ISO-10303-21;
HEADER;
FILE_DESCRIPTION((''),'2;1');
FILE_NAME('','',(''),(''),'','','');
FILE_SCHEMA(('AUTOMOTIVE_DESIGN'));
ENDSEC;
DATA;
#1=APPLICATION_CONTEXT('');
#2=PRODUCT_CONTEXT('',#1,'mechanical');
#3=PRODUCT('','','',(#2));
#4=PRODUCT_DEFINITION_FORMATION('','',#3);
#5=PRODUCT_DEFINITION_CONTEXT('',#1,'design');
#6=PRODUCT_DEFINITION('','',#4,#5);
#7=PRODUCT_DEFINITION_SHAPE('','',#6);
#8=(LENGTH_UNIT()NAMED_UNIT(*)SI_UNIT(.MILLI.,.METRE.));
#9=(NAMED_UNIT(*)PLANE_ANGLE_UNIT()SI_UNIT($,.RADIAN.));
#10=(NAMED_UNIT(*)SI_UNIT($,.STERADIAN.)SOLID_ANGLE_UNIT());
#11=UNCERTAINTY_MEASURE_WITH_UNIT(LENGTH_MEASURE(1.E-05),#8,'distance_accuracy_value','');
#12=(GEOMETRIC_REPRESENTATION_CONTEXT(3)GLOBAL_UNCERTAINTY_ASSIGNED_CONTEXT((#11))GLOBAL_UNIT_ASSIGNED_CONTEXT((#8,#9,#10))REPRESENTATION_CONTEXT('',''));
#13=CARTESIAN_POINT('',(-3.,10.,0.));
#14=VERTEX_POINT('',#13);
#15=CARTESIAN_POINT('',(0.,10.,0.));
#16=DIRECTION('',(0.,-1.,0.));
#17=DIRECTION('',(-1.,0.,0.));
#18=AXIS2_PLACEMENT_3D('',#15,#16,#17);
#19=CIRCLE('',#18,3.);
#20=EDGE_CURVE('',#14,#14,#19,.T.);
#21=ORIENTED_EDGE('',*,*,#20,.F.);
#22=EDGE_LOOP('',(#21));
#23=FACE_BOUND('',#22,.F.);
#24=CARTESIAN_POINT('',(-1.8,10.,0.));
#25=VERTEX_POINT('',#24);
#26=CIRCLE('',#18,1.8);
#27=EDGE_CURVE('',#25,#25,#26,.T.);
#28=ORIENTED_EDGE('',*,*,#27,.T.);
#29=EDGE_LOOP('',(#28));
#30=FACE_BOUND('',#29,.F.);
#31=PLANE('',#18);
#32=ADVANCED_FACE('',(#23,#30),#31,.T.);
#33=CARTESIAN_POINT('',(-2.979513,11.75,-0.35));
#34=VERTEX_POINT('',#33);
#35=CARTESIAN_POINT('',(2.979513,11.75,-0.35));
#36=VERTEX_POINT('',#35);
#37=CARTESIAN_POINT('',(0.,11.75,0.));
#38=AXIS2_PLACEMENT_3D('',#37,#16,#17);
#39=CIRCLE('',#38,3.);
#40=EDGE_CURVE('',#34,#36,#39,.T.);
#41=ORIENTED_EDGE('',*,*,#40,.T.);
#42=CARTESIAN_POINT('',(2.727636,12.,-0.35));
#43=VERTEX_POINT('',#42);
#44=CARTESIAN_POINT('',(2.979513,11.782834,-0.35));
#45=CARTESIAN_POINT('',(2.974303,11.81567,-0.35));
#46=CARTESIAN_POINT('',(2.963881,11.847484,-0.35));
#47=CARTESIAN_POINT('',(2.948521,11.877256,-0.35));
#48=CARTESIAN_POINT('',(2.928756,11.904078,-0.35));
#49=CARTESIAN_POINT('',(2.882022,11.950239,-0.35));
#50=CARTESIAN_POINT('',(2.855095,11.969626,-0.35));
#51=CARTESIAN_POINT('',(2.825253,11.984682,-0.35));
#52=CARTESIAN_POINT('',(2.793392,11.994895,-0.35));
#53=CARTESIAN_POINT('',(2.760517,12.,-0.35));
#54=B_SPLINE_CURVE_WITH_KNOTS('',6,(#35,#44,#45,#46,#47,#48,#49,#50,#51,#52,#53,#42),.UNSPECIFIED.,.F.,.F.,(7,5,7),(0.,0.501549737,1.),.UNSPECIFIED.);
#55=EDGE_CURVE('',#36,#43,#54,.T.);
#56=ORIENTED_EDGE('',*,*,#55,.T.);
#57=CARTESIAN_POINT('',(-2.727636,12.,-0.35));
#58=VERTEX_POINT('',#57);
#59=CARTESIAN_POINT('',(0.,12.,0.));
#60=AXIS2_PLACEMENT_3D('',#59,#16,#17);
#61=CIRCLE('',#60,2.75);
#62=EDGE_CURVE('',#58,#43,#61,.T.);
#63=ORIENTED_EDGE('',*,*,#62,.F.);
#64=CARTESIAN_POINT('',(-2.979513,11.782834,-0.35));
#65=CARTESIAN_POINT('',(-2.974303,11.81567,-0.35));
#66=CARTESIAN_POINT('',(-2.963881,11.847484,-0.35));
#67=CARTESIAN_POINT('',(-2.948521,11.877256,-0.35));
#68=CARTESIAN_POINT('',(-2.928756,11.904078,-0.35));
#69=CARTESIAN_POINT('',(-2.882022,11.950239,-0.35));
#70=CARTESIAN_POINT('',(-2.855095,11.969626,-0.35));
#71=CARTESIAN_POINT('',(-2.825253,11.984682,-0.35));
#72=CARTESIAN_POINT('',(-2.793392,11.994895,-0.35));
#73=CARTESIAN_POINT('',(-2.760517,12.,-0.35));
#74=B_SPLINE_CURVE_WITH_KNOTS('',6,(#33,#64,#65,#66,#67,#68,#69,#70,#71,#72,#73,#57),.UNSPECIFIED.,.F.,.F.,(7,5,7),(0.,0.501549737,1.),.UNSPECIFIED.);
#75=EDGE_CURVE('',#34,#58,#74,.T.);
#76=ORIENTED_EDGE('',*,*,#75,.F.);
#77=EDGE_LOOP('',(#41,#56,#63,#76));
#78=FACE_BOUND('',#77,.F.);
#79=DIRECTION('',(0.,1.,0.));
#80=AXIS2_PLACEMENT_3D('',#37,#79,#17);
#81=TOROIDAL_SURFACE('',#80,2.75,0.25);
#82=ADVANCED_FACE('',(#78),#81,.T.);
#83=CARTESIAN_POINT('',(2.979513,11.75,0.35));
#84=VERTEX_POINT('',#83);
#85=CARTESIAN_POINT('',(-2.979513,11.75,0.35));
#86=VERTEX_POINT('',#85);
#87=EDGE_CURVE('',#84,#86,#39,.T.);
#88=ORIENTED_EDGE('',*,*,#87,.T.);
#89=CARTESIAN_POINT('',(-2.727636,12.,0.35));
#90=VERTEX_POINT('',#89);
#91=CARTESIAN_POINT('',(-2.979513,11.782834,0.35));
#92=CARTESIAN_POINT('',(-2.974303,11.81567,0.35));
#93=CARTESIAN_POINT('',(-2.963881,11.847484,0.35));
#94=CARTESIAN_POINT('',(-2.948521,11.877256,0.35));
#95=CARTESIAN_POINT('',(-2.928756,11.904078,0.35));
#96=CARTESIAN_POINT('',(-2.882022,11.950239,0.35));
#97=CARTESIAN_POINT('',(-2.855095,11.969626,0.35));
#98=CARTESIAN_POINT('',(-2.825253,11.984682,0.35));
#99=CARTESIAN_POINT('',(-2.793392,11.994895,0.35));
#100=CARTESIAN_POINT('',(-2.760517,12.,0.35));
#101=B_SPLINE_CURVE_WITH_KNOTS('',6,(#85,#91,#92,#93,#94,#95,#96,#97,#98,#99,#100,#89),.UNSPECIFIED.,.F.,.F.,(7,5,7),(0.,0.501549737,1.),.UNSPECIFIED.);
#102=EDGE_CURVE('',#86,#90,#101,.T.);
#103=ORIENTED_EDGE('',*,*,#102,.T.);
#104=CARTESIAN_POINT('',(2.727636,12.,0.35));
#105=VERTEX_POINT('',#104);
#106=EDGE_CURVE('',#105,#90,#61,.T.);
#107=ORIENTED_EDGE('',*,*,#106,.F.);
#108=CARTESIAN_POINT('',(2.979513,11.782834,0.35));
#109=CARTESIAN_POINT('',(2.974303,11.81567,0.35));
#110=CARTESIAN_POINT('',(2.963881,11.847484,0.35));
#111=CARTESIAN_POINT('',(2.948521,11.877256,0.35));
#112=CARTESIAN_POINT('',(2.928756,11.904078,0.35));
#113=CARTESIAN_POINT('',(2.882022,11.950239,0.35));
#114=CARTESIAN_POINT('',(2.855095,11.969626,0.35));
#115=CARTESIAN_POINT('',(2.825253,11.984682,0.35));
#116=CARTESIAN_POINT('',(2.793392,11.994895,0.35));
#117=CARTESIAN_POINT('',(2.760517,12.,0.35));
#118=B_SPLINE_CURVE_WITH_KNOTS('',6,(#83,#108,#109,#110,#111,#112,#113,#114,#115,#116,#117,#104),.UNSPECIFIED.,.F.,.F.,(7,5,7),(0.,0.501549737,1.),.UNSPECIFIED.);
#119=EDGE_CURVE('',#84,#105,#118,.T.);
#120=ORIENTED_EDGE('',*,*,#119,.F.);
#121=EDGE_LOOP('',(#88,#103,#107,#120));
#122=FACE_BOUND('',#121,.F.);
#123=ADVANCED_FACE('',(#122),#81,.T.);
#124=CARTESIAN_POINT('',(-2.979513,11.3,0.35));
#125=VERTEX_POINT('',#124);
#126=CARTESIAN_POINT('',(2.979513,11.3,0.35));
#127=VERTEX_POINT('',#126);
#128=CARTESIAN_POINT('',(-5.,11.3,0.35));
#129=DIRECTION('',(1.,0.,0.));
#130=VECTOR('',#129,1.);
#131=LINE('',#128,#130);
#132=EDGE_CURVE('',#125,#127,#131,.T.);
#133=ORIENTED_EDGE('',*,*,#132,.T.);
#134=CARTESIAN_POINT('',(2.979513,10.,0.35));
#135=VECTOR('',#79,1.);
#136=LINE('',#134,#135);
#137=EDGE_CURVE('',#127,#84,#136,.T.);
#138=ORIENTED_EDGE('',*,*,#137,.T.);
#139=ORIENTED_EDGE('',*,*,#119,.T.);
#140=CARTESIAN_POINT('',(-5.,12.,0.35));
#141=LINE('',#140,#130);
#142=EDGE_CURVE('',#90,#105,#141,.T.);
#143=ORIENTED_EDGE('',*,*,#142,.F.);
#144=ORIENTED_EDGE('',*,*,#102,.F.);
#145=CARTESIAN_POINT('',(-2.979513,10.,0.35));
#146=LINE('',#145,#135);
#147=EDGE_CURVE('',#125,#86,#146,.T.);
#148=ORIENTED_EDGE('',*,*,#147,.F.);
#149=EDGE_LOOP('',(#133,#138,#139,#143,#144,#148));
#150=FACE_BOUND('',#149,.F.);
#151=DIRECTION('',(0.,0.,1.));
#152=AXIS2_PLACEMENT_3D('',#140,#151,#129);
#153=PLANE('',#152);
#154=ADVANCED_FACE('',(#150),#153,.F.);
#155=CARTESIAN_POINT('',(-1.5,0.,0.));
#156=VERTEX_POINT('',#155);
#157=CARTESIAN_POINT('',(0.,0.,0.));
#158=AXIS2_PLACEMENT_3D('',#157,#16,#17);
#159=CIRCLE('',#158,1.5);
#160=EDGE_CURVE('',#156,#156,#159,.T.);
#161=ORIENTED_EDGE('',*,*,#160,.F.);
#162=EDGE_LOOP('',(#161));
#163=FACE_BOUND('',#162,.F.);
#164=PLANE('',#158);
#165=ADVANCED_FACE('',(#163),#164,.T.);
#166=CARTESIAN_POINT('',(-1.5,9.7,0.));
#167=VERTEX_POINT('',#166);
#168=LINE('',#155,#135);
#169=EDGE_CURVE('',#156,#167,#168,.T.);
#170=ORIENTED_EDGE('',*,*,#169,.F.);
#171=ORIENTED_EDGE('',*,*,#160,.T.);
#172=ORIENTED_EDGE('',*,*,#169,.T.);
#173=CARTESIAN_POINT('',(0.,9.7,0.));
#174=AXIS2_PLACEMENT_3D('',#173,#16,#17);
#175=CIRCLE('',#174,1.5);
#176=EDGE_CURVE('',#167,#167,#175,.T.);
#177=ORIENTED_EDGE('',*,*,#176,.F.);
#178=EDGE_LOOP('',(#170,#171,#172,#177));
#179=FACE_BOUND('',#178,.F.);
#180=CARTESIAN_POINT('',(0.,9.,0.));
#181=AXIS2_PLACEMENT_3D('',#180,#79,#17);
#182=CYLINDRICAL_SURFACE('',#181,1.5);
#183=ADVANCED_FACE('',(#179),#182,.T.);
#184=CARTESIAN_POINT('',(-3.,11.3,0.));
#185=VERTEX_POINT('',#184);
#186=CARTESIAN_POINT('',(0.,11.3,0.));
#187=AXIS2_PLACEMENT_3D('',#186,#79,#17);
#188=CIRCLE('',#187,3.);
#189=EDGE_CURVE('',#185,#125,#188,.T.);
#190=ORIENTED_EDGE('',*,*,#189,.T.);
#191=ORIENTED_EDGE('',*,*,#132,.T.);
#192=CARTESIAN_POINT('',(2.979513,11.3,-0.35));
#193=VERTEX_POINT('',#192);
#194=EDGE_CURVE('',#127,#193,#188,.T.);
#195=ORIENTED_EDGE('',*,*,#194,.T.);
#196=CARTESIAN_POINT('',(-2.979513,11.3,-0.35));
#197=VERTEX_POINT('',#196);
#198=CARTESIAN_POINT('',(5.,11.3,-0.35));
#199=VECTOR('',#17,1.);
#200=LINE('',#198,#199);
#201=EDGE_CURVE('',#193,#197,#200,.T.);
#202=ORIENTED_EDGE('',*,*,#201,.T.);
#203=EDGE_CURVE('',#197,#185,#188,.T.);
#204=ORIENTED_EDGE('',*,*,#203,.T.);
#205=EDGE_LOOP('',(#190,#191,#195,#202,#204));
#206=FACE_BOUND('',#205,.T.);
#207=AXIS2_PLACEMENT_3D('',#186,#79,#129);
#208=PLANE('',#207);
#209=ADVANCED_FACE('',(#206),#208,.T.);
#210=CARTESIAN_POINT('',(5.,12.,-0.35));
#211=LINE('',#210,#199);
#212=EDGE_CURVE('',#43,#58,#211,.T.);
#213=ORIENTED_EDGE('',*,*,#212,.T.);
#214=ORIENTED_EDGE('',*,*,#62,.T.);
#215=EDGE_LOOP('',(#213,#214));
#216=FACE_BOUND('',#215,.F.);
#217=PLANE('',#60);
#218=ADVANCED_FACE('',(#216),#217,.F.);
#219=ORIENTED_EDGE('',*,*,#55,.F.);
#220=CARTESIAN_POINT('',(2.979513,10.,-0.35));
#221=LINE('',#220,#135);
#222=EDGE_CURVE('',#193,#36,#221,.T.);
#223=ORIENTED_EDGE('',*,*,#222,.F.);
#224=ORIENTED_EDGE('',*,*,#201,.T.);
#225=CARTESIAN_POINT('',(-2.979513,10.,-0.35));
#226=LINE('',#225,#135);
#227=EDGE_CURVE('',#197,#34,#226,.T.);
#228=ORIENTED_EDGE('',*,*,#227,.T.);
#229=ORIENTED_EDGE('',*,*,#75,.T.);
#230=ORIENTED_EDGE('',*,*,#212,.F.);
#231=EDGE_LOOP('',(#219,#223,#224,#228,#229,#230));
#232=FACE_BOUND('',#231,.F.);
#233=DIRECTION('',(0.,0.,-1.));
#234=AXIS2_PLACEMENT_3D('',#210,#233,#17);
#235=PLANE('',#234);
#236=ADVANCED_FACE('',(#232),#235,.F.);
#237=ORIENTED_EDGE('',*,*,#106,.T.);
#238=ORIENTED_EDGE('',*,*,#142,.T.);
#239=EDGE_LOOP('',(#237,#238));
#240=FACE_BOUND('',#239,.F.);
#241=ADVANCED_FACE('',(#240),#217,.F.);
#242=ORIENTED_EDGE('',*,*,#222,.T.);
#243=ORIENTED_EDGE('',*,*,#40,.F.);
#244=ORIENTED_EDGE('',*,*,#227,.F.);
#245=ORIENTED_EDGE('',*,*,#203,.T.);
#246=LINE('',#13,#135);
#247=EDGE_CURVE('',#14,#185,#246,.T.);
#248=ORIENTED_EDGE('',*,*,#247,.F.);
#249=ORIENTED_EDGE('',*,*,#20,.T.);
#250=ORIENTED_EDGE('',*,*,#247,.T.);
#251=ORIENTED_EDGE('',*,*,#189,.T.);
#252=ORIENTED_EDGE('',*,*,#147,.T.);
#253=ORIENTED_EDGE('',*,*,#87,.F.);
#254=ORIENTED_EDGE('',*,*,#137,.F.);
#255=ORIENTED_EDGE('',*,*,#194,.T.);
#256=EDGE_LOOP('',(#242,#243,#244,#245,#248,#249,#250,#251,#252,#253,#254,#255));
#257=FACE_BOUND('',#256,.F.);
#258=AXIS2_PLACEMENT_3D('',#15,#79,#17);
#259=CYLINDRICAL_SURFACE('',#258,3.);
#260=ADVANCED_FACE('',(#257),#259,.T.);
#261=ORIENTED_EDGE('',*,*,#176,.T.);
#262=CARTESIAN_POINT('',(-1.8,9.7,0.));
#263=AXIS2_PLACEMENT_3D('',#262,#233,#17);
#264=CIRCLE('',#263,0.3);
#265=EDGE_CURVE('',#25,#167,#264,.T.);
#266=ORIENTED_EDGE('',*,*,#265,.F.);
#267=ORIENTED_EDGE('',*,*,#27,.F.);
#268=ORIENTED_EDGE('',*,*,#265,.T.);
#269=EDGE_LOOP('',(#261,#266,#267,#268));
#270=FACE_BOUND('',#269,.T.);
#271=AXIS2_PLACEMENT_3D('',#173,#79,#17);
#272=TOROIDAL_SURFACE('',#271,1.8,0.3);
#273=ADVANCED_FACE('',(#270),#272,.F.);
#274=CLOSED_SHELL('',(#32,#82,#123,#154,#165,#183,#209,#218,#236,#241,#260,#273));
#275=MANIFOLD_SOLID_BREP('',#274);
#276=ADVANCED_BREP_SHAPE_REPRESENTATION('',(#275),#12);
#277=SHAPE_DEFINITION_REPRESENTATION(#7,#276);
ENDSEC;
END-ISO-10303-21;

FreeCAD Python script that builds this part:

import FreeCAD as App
import Part
import Sketcher

V = App.Vector


def edges_at(feature, points):
    """Names of the edges that pass closest to the given points."""
    edges = feature.Shape.Edges
    near = lambda p: min(range(len(edges)), key=lambda i: edges[i].distToShape(Part.Vertex(*p))[0])
    return sorted({f"Edge{near(p) + 1}" for p in points})

doc = App.newDocument("Part")
body = doc.addObject("PartDesign::Body", "Body")

# Sketch on XY plane
sketch1 = doc.addObject("Sketcher::SketchObject", "Sketch")
body.addObject(sketch1)
sketch1.AttachmentSupport = (doc.XY_Plane, [""])
sketch1.MapMode = "FlatFace"
sketch1.addGeometry([
    Part.LineSegment(V(-1.5, 0, 0), V(0, 0, 0)),  # 0
    Part.LineSegment(V(0, 0, 0), V(0, 12, 0)),  # 1
    Part.LineSegment(V(0, 12, 0), V(-3, 12, 0)),  # 2
    Part.LineSegment(V(-3, 12, 0), V(-3, 10, 0)),  # 3
    Part.LineSegment(V(-3, 10, 0), V(-1.5, 10, 0)),  # 4
    Part.LineSegment(V(-1.5, 10, 0), V(-1.5, 0, 0)),  # 5
], False)
sketch1.addConstraint([
    Sketcher.Constraint("Coincident", 0, 2, 1, 1),
    Sketcher.Constraint("Coincident", 1, 2, 2, 1),
    Sketcher.Constraint("Coincident", 2, 2, 3, 1),
    Sketcher.Constraint("Coincident", 3, 2, 4, 1),
    Sketcher.Constraint("Coincident", 4, 2, 5, 1),
    Sketcher.Constraint("Coincident", 5, 2, 0, 1),
    Sketcher.Constraint("Horizontal", 0),
    Sketcher.Constraint("Vertical", 1),
    Sketcher.Constraint("Horizontal", 2),
    Sketcher.Constraint("Vertical", 3),
    Sketcher.Constraint("Horizontal", 4),
    Sketcher.Constraint("Vertical", 5),
    Sketcher.Constraint("Coincident", 0, 2, -1, 1),
    Sketcher.Constraint("Equal", 0, 4),
    Sketcher.Constraint("DistanceX", 2, 2, 2, 1, 3.0),
    Sketcher.Constraint("DistanceY", 1, 1, 1, 2, 12.0),
    Sketcher.Constraint("DistanceY", 3, 2, 3, 1, 2.0),
])
revolution = doc.addObject("PartDesign::Revolution", "Revolution")
body.addObject(revolution)
revolution.Profile = sketch1
revolution.ReferenceAxis = (sketch1, ["V_Axis"])
revolution.Angle = 360
doc.recompute()

fillet = doc.addObject("PartDesign::Fillet", "Fillet")
body.addObject(fillet)
fillet.Base = (revolution, edges_at(revolution, [(3, 12, 0)]))
fillet.Radius = 0.25

# Sketch on XZ plane
sketch2 = doc.addObject("Sketcher::SketchObject", "Sketch001")
body.addObject(sketch2)
sketch2.AttachmentSupport = (doc.XZ_Plane, [""])
sketch2.MapMode = "FlatFace"
sketch2.AttachmentOffset = App.Placement(V(0, 0, -12), App.Rotation())
sketch2.addGeometry([
    Part.LineSegment(V(5, 0.3, 0), V(5, -0.3, 0)),
    Part.LineSegment(V(5, -0.3, 0), V(-5, -0.3, 0)),
    Part.LineSegment(V(-5, -0.3, 0), V(-5, 0.3, 0)),
    Part.LineSegment(V(-5, 0.3, 0), V(5, 0.3, 0)),
], False)
sketch2.addConstraint([
    Sketcher.Constraint("Coincident", 0, 2, 1, 1),
    Sketcher.Constraint("Coincident", 1, 2, 2, 1),
    Sketcher.Constraint("Coincident", 2, 2, 3, 1),
    Sketcher.Constraint("Coincident", 3, 2, 0, 1),
    Sketcher.Constraint("Vertical", 0),
    Sketcher.Constraint("Horizontal", 1),
    Sketcher.Constraint("Vertical", 2),
    Sketcher.Constraint("Horizontal", 3),
    Sketcher.Constraint("Symmetric", 0, 2, 2, 2, -1, 1),
    Sketcher.Constraint("DistanceX", 1, 2, 1, 1, 10.0),
    Sketcher.Constraint("DistanceY", 0, 2, 0, 1, 0.7),
])
pocket1 = doc.addObject("PartDesign::Pocket", "Pocket")
body.addObject(pocket1)
pocket1.Profile = sketch2
pocket1.Length = 0.7
pocket1.Reversed = True
doc.recompute()

fillet2 = doc.addObject("PartDesign::Fillet", "Fillet001")
body.addObject(fillet2)
fillet2.Base = (pocket1, edges_at(pocket1, [(1.5, 10, 0)]))
fillet2.Radius = 0.3

doc.recompute()
